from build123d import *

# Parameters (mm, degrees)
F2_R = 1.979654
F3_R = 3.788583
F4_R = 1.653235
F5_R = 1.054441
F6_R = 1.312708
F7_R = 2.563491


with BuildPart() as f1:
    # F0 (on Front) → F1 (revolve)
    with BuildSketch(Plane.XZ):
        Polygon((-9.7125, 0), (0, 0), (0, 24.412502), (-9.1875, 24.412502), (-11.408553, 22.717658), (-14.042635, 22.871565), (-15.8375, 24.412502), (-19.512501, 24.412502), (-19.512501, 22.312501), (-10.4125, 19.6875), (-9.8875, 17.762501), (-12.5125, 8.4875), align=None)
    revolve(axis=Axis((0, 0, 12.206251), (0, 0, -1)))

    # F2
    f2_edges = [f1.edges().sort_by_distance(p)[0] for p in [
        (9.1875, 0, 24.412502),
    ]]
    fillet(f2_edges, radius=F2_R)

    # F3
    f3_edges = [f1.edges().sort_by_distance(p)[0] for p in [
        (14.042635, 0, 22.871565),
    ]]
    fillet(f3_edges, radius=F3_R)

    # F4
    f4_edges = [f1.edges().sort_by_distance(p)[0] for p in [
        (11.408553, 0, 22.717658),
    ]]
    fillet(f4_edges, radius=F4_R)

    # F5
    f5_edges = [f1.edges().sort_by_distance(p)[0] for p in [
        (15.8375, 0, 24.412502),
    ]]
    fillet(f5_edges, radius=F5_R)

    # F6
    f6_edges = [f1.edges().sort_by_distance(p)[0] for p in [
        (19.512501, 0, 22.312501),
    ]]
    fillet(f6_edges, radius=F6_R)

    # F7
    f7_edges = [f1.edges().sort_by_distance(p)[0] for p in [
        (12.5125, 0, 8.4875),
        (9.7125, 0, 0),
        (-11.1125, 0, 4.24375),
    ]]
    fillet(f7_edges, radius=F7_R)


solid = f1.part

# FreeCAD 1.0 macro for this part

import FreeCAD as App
import Part
import Sketcher
from FreeCAD import Vector


def edges_at(feature, points):
    """Names of the edges that pass closest to the given points."""
    edges = feature.Shape.Edges
    near = lambda p: min(range(len(edges)), key=lambda i: edges[i].distToShape(Part.Vertex(*p))[0])
    return sorted({f"Edge{near(p) + 1}" for p in points})


def add_polygon(sketch, points):
    """Adds a closed chain of lines whose ends are joined by coincident constraints."""
    first, n = sketch.GeometryCount, len(points)
    for a, b in zip(points, points[1:] + points[:1]):
        sketch.addGeometry(Part.LineSegment(App.Vector(*a, 0), App.Vector(*b, 0)), False)
    for i in range(n):
        sketch.addConstraint(Sketcher.Constraint("Coincident", first + i, 2, first + (i + 1) % n, 1))

doc = App.newDocument("Part")
body = doc.addObject("PartDesign::Body", "Body")

sketch1 = body.newObject("Sketcher::SketchObject", "Sketch")
sketch1.AttachmentSupport = (doc.getObject("XZ_Plane"), [""])
sketch1.MapMode = "FlatFace"
add_polygon(sketch1, [(-9.7125, 0), (0, 0), (0, 24.412502), (-9.1875, 24.412502), (-11.408553, 22.717658), (-14.042635, 22.871565), (-15.8375, 24.412502), (-19.512501, 24.412502), (-19.512501, 22.312501), (-10.4125, 19.6875), (-9.8875, 17.762501), (-12.5125, 8.4875)])
sketch1.addConstraint(Sketcher.Constraint("Horizontal", 0))
sketch1.addConstraint(Sketcher.Constraint("Vertical", 1))
sketch1.addConstraint(Sketcher.Constraint("Horizontal", 2))
sketch1.addConstraint(Sketcher.Constraint("Horizontal", 6))
sketch1.addConstraint(Sketcher.Constraint("Vertical", 7))
sketch1.addConstraint(Sketcher.Constraint("Coincident", 0, 2, -1, 1))
sketch1.addConstraint(Sketcher.Constraint("Horizontal", 2, 2, 5, 2))
sketch1.addConstraint(Sketcher.Constraint("DistanceY", 7, 2, 7, 1, 2.100001))
sketch1.addConstraint(Sketcher.Constraint("DistanceX", 7, 2, 8, 2, 9.100001))
sketch1.addConstraint(Sketcher.Constraint("DistanceX", 9, 2, 2, 2, 0.7))
sketch1.addConstraint(Sketcher.Constraint("DistanceX", 10, 2, 8, 2, 2.1))
sketch1.addConstraint(Sketcher.Constraint("DistanceY", 10, 2, 8, 2, 11.2))
sketch1.addConstraint(Sketcher.Constraint("DistanceX", 10, 2, 11, 2, 2.8))
sketch1.addConstraint(Sketcher.Constraint("DistanceX", 6, 2, 6, 1, 3.675001))
sketch1.addConstraint(Sketcher.Constraint("DistanceX", 5, 2, 2, 2, 6.65))
sketch1.addConstraint(Sketcher.Constraint("DistanceY", 9, 2, 2, 2, 6.650001))
sketch1.addConstraint(Sketcher.Constraint("DistanceX", 0, 1, 0, 2, 9.7125))
sketch1.addConstraint(Sketcher.Constraint("DistanceY", 1, 1, 1, 2, 24.412502))
sketch1.addConstraint(Sketcher.Constraint("DistanceY", 8, 2, 7, 2, 2.625001))
sketch1.addConstraint(Sketcher.Constraint("DistanceY", -1, 1, 3, 2, 22.717658))
sketch1.addConstraint(Sketcher.Constraint("DistanceX", 6, 2, 3, 2, 8.103948))
sketch1.addConstraint(Sketcher.Constraint("Distance", 4, 2.638574))
sketch1.addConstraint(Sketcher.Constraint("Distance", 5, 2.365592))
revolution = body.newObject("PartDesign::Revolution", "Revolution")
revolution.Profile = sketch1
revolution.ReferenceAxis = (sketch1, ["V_Axis"])
revolution.Angle = 360
doc.recompute()

fillet = body.newObject("PartDesign::Fillet", "Fillet")
fillet.Base = (revolution, edges_at(revolution, [(9.188, 0, 24.413)]))
fillet.Radius = 1.979654
doc.recompute()

fillet2 = body.newObject("PartDesign::Fillet", "Fillet001")
fillet2.Base = (fillet, edges_at(fillet, [(14.043, 0, 22.872)]))
fillet2.Radius = 3.788583
doc.recompute()

fillet3 = body.newObject("PartDesign::Fillet", "Fillet002")
fillet3.Base = (fillet2, edges_at(fillet2, [(11.409, 0, 22.718)]))
fillet3.Radius = 1.653235
doc.recompute()

fillet4 = body.newObject("PartDesign::Fillet", "Fillet003")
fillet4.Base = (fillet3, edges_at(fillet3, [(15.838, 0, 24.413)]))
fillet4.Radius = 1.054441
doc.recompute()

fillet5 = body.newObject("PartDesign::Fillet", "Fillet004")
fillet5.Base = (fillet4, edges_at(fillet4, [(19.513, 0, 22.313)]))
fillet5.Radius = 1.312708
doc.recompute()

fillet6 = body.newObject("PartDesign::Fillet", "Fillet005")
fillet6.Base = (fillet5, edges_at(fillet5, [(12.512, 0, 8.488), (9.713, 0, 0), (-11.113, 0, 4.244)]))
fillet6.Radius = 2.563491

doc.recompute()
